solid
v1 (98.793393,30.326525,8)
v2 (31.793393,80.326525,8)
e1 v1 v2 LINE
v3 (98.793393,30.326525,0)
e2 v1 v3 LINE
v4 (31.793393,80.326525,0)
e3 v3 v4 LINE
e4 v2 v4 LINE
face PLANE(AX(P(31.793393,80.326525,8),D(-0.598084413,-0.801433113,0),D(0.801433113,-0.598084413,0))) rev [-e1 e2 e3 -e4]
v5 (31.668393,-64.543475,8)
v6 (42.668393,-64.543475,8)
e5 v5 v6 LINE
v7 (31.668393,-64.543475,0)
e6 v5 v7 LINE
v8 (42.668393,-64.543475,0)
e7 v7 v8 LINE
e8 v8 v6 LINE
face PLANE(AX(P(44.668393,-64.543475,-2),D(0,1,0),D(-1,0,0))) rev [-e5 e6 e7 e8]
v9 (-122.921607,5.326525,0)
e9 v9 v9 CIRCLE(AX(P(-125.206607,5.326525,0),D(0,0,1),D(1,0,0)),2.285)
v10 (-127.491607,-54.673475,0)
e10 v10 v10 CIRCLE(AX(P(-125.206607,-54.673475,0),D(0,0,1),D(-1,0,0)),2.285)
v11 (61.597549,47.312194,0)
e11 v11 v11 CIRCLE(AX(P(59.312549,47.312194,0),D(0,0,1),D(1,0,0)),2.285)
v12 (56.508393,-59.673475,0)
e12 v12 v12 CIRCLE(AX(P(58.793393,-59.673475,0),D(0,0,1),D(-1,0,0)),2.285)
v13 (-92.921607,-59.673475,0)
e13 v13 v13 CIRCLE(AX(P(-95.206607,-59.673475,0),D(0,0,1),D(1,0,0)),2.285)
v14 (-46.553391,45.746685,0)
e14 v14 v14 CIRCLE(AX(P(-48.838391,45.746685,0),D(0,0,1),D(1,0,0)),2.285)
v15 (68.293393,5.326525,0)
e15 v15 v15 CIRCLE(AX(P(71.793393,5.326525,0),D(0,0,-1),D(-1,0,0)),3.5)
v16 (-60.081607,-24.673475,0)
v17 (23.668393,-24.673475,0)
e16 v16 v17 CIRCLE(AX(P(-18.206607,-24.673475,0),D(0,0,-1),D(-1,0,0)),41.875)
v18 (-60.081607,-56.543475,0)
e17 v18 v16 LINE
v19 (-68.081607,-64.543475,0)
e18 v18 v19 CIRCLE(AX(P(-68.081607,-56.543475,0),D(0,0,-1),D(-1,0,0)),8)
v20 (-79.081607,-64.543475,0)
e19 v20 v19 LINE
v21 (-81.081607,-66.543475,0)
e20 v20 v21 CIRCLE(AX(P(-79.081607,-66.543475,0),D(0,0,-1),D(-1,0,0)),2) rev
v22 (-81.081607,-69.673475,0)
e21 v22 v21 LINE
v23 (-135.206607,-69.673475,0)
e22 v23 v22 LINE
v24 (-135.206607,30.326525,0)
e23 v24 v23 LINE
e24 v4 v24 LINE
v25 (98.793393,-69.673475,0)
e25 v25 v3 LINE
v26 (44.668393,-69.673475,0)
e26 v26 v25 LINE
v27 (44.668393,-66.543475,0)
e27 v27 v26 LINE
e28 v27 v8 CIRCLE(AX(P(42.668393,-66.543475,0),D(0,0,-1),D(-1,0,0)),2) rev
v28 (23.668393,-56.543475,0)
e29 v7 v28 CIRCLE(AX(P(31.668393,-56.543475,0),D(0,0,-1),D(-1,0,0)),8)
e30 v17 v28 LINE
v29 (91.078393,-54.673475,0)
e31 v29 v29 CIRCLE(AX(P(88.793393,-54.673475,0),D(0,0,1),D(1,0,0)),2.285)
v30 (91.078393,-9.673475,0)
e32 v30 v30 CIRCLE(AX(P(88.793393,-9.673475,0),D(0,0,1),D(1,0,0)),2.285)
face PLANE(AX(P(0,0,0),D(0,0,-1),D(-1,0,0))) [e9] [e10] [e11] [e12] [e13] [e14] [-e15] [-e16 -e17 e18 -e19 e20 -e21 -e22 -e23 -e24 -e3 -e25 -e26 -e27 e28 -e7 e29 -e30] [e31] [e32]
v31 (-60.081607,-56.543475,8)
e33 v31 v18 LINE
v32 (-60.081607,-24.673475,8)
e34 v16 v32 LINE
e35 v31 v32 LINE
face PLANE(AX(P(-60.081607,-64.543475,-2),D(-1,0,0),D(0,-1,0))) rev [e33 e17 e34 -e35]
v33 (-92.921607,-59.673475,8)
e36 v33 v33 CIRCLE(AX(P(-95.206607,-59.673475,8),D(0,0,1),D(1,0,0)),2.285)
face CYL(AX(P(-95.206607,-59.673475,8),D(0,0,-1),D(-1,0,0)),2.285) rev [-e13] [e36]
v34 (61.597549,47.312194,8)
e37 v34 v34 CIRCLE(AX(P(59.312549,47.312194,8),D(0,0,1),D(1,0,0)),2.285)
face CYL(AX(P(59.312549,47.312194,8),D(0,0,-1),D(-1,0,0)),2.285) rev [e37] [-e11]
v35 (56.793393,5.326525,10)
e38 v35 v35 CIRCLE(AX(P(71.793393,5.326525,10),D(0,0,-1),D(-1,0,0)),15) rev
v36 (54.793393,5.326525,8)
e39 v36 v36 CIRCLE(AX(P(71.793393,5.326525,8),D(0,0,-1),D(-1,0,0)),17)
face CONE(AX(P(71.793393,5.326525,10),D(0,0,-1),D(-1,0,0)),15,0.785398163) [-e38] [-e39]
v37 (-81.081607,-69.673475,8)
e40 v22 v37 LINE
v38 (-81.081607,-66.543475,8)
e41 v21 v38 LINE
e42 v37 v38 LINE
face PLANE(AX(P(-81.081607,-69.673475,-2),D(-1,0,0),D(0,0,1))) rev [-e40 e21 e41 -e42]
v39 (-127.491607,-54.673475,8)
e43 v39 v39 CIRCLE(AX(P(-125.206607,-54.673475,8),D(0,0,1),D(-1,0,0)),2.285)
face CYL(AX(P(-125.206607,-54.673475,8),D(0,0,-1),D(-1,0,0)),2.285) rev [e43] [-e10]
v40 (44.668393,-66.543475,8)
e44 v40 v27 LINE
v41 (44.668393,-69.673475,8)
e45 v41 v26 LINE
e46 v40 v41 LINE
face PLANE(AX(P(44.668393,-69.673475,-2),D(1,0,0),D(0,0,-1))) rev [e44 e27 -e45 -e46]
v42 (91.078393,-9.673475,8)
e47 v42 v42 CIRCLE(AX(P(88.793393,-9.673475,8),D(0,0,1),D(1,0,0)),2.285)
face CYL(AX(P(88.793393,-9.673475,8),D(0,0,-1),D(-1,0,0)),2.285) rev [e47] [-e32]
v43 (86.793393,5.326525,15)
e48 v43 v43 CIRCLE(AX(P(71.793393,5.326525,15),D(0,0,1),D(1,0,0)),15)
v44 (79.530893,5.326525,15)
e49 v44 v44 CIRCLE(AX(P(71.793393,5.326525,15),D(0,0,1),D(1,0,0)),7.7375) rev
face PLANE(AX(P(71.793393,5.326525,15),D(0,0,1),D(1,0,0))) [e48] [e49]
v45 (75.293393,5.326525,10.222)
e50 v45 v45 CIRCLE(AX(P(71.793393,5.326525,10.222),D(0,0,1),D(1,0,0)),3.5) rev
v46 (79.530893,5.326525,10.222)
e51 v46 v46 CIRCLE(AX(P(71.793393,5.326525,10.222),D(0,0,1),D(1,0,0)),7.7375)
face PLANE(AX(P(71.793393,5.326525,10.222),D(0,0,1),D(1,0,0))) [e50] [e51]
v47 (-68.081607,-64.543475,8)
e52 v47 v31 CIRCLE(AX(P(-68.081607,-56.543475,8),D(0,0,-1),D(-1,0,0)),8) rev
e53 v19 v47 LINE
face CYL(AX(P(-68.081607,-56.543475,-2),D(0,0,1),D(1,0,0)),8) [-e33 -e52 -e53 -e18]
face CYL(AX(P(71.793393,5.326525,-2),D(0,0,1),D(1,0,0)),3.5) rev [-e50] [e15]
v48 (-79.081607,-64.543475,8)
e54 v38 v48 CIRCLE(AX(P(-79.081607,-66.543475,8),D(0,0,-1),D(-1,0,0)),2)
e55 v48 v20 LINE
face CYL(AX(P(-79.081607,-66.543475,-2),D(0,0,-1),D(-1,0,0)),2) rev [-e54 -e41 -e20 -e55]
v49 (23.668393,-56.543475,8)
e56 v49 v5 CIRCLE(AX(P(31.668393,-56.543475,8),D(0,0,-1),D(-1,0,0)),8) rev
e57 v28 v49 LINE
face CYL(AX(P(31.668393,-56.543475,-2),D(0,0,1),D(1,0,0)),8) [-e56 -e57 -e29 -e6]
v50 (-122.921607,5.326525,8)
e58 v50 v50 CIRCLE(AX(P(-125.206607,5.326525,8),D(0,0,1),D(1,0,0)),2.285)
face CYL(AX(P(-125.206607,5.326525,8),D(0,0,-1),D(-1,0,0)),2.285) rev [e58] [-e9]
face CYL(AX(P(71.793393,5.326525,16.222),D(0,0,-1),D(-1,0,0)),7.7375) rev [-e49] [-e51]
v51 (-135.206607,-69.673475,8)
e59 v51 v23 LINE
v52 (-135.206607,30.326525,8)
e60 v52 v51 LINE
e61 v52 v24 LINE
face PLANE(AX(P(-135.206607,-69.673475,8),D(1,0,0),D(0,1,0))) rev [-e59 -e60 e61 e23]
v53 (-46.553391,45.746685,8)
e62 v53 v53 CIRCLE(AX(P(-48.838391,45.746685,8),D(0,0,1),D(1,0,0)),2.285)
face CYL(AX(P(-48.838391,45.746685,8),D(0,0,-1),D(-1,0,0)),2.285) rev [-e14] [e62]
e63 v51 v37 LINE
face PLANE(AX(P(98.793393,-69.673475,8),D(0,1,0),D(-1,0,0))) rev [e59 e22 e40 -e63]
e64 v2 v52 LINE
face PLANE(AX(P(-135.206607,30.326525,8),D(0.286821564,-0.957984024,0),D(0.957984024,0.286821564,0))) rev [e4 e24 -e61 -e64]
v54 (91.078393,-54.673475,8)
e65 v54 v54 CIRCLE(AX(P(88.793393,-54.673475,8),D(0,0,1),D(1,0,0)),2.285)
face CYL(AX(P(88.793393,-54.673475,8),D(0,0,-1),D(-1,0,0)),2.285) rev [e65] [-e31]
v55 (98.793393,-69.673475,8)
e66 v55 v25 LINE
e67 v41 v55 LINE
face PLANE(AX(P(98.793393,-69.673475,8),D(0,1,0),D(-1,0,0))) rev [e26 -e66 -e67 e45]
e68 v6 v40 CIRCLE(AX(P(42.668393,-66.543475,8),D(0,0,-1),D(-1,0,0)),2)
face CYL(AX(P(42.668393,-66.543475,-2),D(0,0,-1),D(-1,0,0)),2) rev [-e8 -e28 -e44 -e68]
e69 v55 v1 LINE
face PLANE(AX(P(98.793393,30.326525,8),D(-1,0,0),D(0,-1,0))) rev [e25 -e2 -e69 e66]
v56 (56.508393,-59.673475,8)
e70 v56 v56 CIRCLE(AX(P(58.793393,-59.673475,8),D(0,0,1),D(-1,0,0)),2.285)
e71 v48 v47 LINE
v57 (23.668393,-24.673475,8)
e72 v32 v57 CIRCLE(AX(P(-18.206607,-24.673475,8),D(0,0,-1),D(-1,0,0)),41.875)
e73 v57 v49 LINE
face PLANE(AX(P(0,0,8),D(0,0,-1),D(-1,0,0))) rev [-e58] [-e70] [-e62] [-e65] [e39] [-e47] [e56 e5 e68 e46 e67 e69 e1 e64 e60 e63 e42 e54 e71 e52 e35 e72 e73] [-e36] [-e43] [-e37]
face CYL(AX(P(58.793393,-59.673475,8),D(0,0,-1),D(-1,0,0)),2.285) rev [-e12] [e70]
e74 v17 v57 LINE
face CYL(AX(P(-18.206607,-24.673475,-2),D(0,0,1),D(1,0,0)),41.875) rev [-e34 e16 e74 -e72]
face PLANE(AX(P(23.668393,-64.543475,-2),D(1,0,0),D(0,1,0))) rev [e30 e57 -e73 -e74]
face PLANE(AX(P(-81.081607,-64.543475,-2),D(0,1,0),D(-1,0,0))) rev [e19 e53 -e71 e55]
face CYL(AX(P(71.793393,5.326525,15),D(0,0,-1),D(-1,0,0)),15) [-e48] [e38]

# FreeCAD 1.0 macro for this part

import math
import FreeCAD as App
import Part
import Sketcher

V = App.Vector


def edges_at(feature, points):
    """Names of the edges that pass closest to the given points."""
    edges = feature.Shape.Edges
    near = lambda p: min(range(len(edges)), key=lambda i: edges[i].distToShape(Part.Vertex(*p))[0])
    return sorted({f"Edge{near(p) + 1}" for p in points})

doc = App.newDocument("Part")
body = doc.addObject("PartDesign::Body", "Body")

# Sketch on XY plane
sketch1 = body.newObject("Sketcher::SketchObject", "Sketch")
sketch1.AttachmentSupport = (doc.getObject("XY_Plane"), [""])
sketch1.MapMode = "FlatFace"
sketch1.addGeometry([
    Part.LineSegment(V(-135.2, 30.3, 0), V(-135.2, -69.7, 0)),  # 0
    Part.LineSegment(V(-135.2, -69.7, 0), V(98.8, -69.7, 0)),  # 1
    Part.LineSegment(V(98.8, -69.7, 0), V(98.8, 30.3, 0)),  # 2
    Part.LineSegment(V(98.8, 30.3, 0), V(31.8, 80.3, 0)),  # 3
    Part.LineSegment(V(31.8, 80.3, 0), V(-135.2, 30.3, 0)),  # 4
    Part.Circle(V(88.8, -54.7, 0), V(0, 0, 1), 2.3),  # 5
    Part.Circle(V(58.8, -59.7, 0), V(0, 0, 1), 2.3),  # 6
    Part.Circle(V(88.8, -9.7, 0), V(0, 0, 1), 2.3),  # 7
    Part.Circle(V(-95.2, -59.7, 0), V(0, 0, 1), 2.3),  # 8
    Part.Circle(V(-125.2, -54.7, 0), V(0, 0, 1), 2.3),  # 9
    Part.Circle(V(59.3, 47.3, 0), V(0, 0, 1), 2.3),  # 10
    Part.Circle(V(-125.2, 5.3, 0), V(0, 0, 1), 2.3),  # 11
    Part.Circle(V(-48.8, 45.7, 0), V(0, 0, 1), 2.3),  # 12
], False)
sketch1.addConstraint([
    Sketcher.Constraint("Coincident", 0, 2, 1, 1),
    Sketcher.Constraint("Coincident", 1, 2, 2, 1),
    Sketcher.Constraint("Coincident", 2, 2, 3, 1),
    Sketcher.Constraint("Coincident", 3, 2, 4, 1),
    Sketcher.Constraint("Coincident", 4, 2, 0, 1),
    Sketcher.Constraint("Vertical", 0),
    Sketcher.Constraint("Horizontal", 1),
    Sketcher.Constraint("Vertical", 2),
    Sketcher.Constraint("Equal", 5, 6),
    Sketcher.Constraint("Equal", 6, 7),
    Sketcher.Constraint("Equal", 7, 8),
    Sketcher.Constraint("Equal", 8, 9),
    Sketcher.Constraint("Equal", 9, 10),
    Sketcher.Constraint("Equal", 10, 11),
    Sketcher.Constraint("Equal", 11, 12),
    Sketcher.Constraint("Horizontal", 6, 3, 8, 3),
    Sketcher.Constraint("Horizontal", 5, 3, 9, 3),
    Sketcher.Constraint("Horizontal", 2, 2, 4, 2),
    Sketcher.Constraint("Vertical", 5, 3, 7, 3),
    Sketcher.Constraint("Vertical", 9, 3, 11, 3),
    Sketcher.Constraint("Diameter", 5, 4.57),
    Sketcher.Constraint("DistanceX", 1, 1, 1, 2, 234.0),
    Sketcher.Constraint("DistanceY", 0, 2, 0, 1, 100.0),
    Sketcher.Constraint("DistanceX", 6, 3, 5, 3, 30.0),
    Sketcher.Constraint("DistanceY", 6, 3, 5, 3, 5.0),
    Sketcher.Constraint("DistanceY", 5, 3, 7, 3, 45.0),
    Sketcher.Constraint("DistanceX", 8, 3, 6, 3, 154.0),
    Sketcher.Constraint("DistanceX", 9, 3, 8, 3, 30.0),
    Sketcher.Constraint("DistanceY", 9, 3, 11, 3, 60.0),
    Sketcher.Constraint("DistanceX", 0, 2, 9, 3, 10.0),
    Sketcher.Constraint("DistanceY", 0, 2, 9, 3, 15.0),
    Sketcher.Constraint("DistanceX", 3, 2, 2, 2, 67.0),
    Sketcher.Constraint("DistanceY", 2, 2, 3, 2, 50.0),
    Sketcher.Constraint("DistanceX", -1, 1, 10, 3, 59.312549),
    Sketcher.Constraint("DistanceX", 12, 3, -1, 1, 48.838391),
    Sketcher.Constraint("DistanceY", 7, 3, 10, 3, 56.985669),
    Sketcher.Constraint("DistanceY", 11, 3, 12, 3, 40.42016),
    Sketcher.Constraint("DistanceX", -1, 1, 5, 3, 88.793393),
    Sketcher.Constraint("DistanceY", 5, 3, -1, 1, 54.673475),
])
pad1 = body.newObject("PartDesign::Pad", "Pad")
pad1.Profile = sketch1
pad1.Length = 8

# Sketch on XY plane
sketch2 = body.newObject("Sketcher::SketchObject", "Sketch001")
sketch2.AttachmentSupport = (doc.getObject("XY_Plane"), [""])
sketch2.MapMode = "FlatFace"
sketch2.addGeometry(Part.Circle(V(72, 5, 0), V(0, 0, 1), 15), False)
sketch2.addConstraint([
    Sketcher.Constraint("Diameter", 0, 30.0),
    Sketcher.Constraint("DistanceX", -1, 1, 0, 3, 71.793393),
    Sketcher.Constraint("DistanceY", -1, 1, 0, 3, 5.326525),
])
pad2 = body.newObject("PartDesign::Pad", "Pad001")
pad2.Profile = sketch2
pad2.Length = 15

# Sketch on XY plane
sketch3 = body.newObject("Sketcher::SketchObject", "Sketch002")
sketch3.AttachmentSupport = (doc.getObject("XY_Plane"), [""])
sketch3.MapMode = "FlatFace"
sketch3.addGeometry([
    Part.Circle(V(71.8, 5.3, 0), V(0, 0, 1), 3.5),  # 0
    Part.LineSegment(V(44.7, -64.5, 0), V(23.7, -64.5, 0)),  # 1
    Part.LineSegment(V(23.7, -64.5, 0), V(23.7, -24.7, 0)),  # 2
    Part.ArcOfCircle(Part.Circle(V(-18.2, -24.7, 0), V(0, 0, 1), 41.9), math.radians(0), math.radians(180)),  # 3
    Part.LineSegment(V(-60.1, -24.7, 0), V(-60.1, -64.5, 0)),  # 4
    Part.LineSegment(V(-60.1, -64.5, 0), V(-81.1, -64.5, 0)),  # 5
    Part.LineSegment(V(-81.1, -64.5, 0), V(-81.1, -72.3, 0)),  # 6
    Part.LineSegment(V(-81.1, -72.3, 0), V(44.7, -72.3, 0)),  # 7
    Part.LineSegment(V(44.7, -72.3, 0), V(44.7, -64.5, 0)),  # 8
], False)
sketch3.addConstraint([
    Sketcher.Constraint("Coincident", 1, 2, 2, 1),
    Sketcher.Constraint("Tangent", 2, 2, 3, 1),
    Sketcher.Constraint("Tangent", 3, 2, 4, 1),
    Sketcher.Constraint("Coincident", 4, 2, 5, 1),
    Sketcher.Constraint("Coincident", 5, 2, 6, 1),
    Sketcher.Constraint("Coincident", 6, 2, 7, 1),
    Sketcher.Constraint("Coincident", 7, 2, 8, 1),
    Sketcher.Constraint("Coincident", 8, 2, 1, 1),
    Sketcher.Constraint("Horizontal", 1),
    Sketcher.Constraint("Vertical", 2),
    Sketcher.Constraint("Vertical", 4),
    Sketcher.Constraint("Horizontal", 5),
    Sketcher.Constraint("Vertical", 6),
    Sketcher.Constraint("Horizontal", 7),
    Sketcher.Constraint("Vertical", 8),
    Sketcher.Constraint("Horizontal", 1, 2, 4, 2),
    Sketcher.Constraint("Equal", 1, 5),
    Sketcher.Constraint("Diameter", 0, 7.0),
    Sketcher.Constraint("DistanceX", 1, 2, 1, 1, 21.0),
    Sketcher.Constraint("Radius", 3, 41.875),
    Sketcher.Constraint("DistanceX", 3, 3, 0, 3, 90.0),
    Sketcher.Constraint("DistanceY", 3, 3, 0, 3, 30.0),
    Sketcher.Constraint("DistanceY", 2, 1, 2, 2, 39.87),
    Sketcher.Constraint("DistanceY", 6, 2, 6, 1, 7.790023),
    Sketcher.Constraint("DistanceX", -1, 1, 0, 3, 71.793393),
    Sketcher.Constraint("DistanceY", -1, 1, 0, 3, 5.326525),
])
pocket1 = body.newObject("PartDesign::Pocket", "Pocket")
pocket1.Profile = sketch3
pocket1.Type = "ThroughAll"
pocket1.Midplane = True

# Sketch on XY plane
sketch4 = body.newObject("Sketcher::SketchObject", "Sketch003")
sketch4.AttachmentSupport = (doc.getObject("XY_Plane"), [""])
sketch4.MapMode = "FlatFace"
sketch4.AttachmentOffset = App.Placement(V(0, 0, 10.222), App.Rotation())
sketch4.addGeometry(Part.Circle(V(72, 5, 0), V(0, 0, 1), 8), False)
sketch4.addConstraint([
    Sketcher.Constraint("Diameter", 0, 15.475),
    Sketcher.Constraint("DistanceX", -1, 1, 0, 3, 71.793393),
    Sketcher.Constraint("DistanceY", -1, 1, 0, 3, 5.326525),
])
pocket2 = body.newObject("PartDesign::Pocket", "Pocket001")
pocket2.Profile = sketch4
pocket2.Length = 6
pocket2.Reversed = True
doc.recompute()

fillet = body.newObject("PartDesign::Fillet", "Fillet")
fillet.Base = (pocket2, edges_at(pocket2, [(23.668, -64.543, 4), (-60.082, -64.543, 4)]))
fillet.Radius = 8
doc.recompute()

fillet2 = body.newObject("PartDesign::Fillet", "Fillet001")
fillet2.Base = (fillet, edges_at(fillet, [(-81.082, -64.543, 4), (44.668, -64.543, 4)]))
fillet2.Radius = 2
doc.recompute()

chamfer = body.newObject("PartDesign::Chamfer", "Chamfer")
chamfer.Base = (fillet2, edges_at(fillet2, [(86.793, 5.327, 8)]))
chamfer.Size = 2

doc.recompute()
